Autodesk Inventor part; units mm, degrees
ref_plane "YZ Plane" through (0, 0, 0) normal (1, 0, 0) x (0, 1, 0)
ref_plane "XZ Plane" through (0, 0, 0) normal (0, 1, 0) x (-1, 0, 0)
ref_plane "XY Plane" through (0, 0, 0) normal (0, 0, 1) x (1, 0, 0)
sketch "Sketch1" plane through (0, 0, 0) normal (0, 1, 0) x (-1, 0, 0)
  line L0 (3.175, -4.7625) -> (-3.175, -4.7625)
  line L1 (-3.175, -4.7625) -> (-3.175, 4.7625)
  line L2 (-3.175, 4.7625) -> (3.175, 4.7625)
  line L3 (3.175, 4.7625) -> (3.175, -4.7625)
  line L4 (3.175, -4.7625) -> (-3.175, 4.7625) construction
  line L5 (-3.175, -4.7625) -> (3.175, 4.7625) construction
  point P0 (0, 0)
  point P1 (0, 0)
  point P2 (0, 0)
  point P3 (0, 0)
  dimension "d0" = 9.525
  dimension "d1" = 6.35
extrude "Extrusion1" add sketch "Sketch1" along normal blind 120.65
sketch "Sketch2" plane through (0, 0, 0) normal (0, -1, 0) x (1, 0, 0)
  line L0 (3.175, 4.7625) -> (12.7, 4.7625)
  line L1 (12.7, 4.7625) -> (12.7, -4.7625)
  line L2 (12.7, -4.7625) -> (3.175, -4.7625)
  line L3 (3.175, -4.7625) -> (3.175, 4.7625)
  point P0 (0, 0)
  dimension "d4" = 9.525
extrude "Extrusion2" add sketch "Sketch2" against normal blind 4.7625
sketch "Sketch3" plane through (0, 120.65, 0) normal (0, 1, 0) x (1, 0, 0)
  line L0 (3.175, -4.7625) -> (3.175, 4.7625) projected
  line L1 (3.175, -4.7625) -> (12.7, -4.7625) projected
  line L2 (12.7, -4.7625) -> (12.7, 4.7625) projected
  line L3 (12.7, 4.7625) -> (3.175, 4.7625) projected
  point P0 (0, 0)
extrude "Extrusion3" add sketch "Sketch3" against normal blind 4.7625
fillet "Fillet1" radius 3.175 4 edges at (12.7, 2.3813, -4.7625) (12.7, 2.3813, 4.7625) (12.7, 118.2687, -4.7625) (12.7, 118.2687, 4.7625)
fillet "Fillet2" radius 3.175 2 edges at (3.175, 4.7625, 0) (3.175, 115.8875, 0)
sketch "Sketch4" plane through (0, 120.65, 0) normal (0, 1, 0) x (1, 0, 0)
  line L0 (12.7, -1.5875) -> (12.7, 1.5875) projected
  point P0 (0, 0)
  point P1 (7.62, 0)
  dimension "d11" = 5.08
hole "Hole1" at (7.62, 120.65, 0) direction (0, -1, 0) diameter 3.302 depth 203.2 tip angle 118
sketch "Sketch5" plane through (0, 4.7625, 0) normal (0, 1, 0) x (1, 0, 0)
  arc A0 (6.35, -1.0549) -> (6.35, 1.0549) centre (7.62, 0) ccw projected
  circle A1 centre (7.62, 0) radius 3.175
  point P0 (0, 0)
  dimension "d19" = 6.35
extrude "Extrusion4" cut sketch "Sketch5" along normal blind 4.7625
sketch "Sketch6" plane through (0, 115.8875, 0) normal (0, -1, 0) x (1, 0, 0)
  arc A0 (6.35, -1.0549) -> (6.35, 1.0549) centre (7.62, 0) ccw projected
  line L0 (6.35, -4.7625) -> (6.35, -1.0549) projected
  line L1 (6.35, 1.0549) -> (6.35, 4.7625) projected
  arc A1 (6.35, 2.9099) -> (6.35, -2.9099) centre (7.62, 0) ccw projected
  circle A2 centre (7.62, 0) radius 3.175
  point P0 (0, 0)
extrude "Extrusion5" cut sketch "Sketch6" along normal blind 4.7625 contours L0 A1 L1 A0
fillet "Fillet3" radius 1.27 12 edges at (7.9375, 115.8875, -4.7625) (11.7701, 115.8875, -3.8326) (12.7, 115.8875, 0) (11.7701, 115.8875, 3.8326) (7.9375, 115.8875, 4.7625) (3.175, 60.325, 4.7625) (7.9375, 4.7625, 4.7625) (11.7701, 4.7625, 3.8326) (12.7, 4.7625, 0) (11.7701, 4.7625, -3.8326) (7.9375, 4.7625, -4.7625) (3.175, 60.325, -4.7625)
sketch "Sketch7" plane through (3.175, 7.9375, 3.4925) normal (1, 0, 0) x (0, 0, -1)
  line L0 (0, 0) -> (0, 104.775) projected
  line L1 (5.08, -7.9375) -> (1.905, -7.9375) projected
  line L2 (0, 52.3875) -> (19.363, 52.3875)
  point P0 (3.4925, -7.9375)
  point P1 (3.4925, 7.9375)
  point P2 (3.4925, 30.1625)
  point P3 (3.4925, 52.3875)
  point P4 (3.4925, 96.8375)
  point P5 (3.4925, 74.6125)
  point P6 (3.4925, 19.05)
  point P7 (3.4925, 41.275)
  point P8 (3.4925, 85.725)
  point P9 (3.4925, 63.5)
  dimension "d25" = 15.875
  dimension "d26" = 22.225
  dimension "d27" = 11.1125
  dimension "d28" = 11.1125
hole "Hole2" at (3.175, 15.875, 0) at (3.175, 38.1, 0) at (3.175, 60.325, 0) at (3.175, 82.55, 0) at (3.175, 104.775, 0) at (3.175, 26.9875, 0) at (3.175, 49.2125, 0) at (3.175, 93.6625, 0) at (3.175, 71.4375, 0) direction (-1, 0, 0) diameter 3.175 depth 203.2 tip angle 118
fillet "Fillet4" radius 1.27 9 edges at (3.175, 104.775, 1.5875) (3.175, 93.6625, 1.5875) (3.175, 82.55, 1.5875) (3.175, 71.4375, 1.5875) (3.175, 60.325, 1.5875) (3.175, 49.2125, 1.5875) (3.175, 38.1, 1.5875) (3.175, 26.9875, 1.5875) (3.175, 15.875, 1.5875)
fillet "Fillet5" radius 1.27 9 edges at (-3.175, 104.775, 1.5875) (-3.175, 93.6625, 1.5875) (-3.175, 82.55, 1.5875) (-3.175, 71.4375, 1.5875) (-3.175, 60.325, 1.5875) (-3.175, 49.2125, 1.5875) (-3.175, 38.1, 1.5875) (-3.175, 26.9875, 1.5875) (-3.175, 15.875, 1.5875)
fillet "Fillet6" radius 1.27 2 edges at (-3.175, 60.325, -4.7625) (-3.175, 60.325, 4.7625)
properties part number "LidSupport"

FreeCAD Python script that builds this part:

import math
import FreeCAD as App
import Part
import Sketcher

V = App.Vector
Q = App.Units.Quantity


def edges_at(feature, points):
    """Names of the edges that pass closest to the given points."""
    edges = feature.Shape.Edges
    near = lambda p: min(range(len(edges)), key=lambda i: edges[i].distToShape(Part.Vertex(*p))[0])
    return sorted({f"Edge{near(p) + 1}" for p in points})

doc = App.newDocument("Part")
body = doc.addObject("PartDesign::Body", "Body")

# Sketch on XZ plane
sketch1 = body.newObject("Sketcher::SketchObject", "Sketch")
sketch1.AttachmentSupport = (doc.getObject("XZ_Plane"), [""])
sketch1.MapMode = "FlatFace"
sketch1.addGeometry([
    Part.LineSegment(V(3, -5, 0), V(-3, -5, 0)),
    Part.LineSegment(V(-3, -5, 0), V(-3, 5, 0)),
    Part.LineSegment(V(-3, 5, 0), V(3, 5, 0)),
    Part.LineSegment(V(3, 5, 0), V(3, -5, 0)),
], False)
sketch1.addConstraint([
    Sketcher.Constraint("Coincident", 0, 2, 1, 1),
    Sketcher.Constraint("Coincident", 1, 2, 2, 1),
    Sketcher.Constraint("Coincident", 2, 2, 3, 1),
    Sketcher.Constraint("Coincident", 3, 2, 0, 1),
    Sketcher.Constraint("Horizontal", 0),
    Sketcher.Constraint("Vertical", 1),
    Sketcher.Constraint("Horizontal", 2),
    Sketcher.Constraint("Vertical", 3),
    Sketcher.Constraint("Symmetric", 0, 2, 2, 2, -1, 1),
    Sketcher.Constraint("DistanceX", 0, 2, 0, 1, Q("0.25 in")),
    Sketcher.Constraint("DistanceY", 1, 1, 1, 2, Q("0.375 in")),
])
pad1 = body.newObject("PartDesign::Pad", "Pad")
pad1.Profile = sketch1
pad1.Length = Q("4.75 in")
pad1.Reversed = True

# Sketch on XZ plane
sketch2 = body.newObject("Sketcher::SketchObject", "Sketch001")
sketch2.AttachmentSupport = (doc.getObject("XZ_Plane"), [""])
sketch2.MapMode = "FlatFace"
sketch2.addGeometry([
    Part.LineSegment(V(13, 5, 0), V(3, 5, 0)),
    Part.LineSegment(V(3, 5, 0), V(3, -5, 0)),
    Part.LineSegment(V(3, -5, 0), V(13, -5, 0)),
    Part.LineSegment(V(13, -5, 0), V(13, 5, 0)),
], False)
sketch2.addConstraint([
    Sketcher.Constraint("Coincident", 0, 2, 1, 1),
    Sketcher.Constraint("Coincident", 1, 2, 2, 1),
    Sketcher.Constraint("Coincident", 2, 2, 3, 1),
    Sketcher.Constraint("Coincident", 3, 2, 0, 1),
    Sketcher.Constraint("Horizontal", 0),
    Sketcher.Constraint("Vertical", 1),
    Sketcher.Constraint("Horizontal", 2),
    Sketcher.Constraint("Vertical", 3),
    Sketcher.Constraint("Equal", 2, 1),
    Sketcher.Constraint("DistanceX", 0, 2, 0, 1, Q("0.375 in")),
    Sketcher.Constraint("DistanceX", -1, 1, 2, 2, Q("0.5 in")),
    Sketcher.Constraint("DistanceY", -1, 1, 0, 2, Q("0.1875 in")),
])
pad2 = body.newObject("PartDesign::Pad", "Pad001")
pad2.Profile = sketch2
pad2.Length = Q("0.1875 in")
pad2.Reversed = True

# Sketch on XZ plane
sketch3 = body.newObject("Sketcher::SketchObject", "Sketch002")
sketch3.AttachmentSupport = (doc.getObject("XZ_Plane"), [""])
sketch3.MapMode = "FlatFace"
sketch3.AttachmentOffset = App.Placement(V(0, 0, -4.75 * 25.4), App.Rotation())
sketch3.addGeometry([
    Part.LineSegment(V(3, -5, 0), V(3, 5, 0)),
    Part.LineSegment(V(3, 5, 0), V(13, 5, 0)),
    Part.LineSegment(V(13, 5, 0), V(13, -5, 0)),
    Part.LineSegment(V(13, -5, 0), V(3, -5, 0)),
], False)
sketch3.addConstraint([
    Sketcher.Constraint("Coincident", 0, 2, 1, 1),
    Sketcher.Constraint("Coincident", 1, 2, 2, 1),
    Sketcher.Constraint("Coincident", 2, 2, 3, 1),
    Sketcher.Constraint("Coincident", 3, 2, 0, 1),
    Sketcher.Constraint("Vertical", 0),
    Sketcher.Constraint("Horizontal", 1),
    Sketcher.Constraint("Vertical", 2),
    Sketcher.Constraint("Horizontal", 3),
    Sketcher.Constraint("Equal", 3, 0),
    Sketcher.Constraint("DistanceX", -1, 1, 1, 2, Q("0.5 in")),
    Sketcher.Constraint("DistanceX", 1, 1, 1, 2, Q("0.375 in")),
    Sketcher.Constraint("DistanceY", -1, 1, 0, 2, Q("0.1875 in")),
])
pad3 = body.newObject("PartDesign::Pad", "Pad002")
pad3.Profile = sketch3
pad3.Length = Q("0.1875 in")
doc.recompute()

fillet = body.newObject("PartDesign::Fillet", "Fillet")
fillet.Base = (pad3, edges_at(pad3, [
    (12.7, 2.381, -4.763),
    (12.7, 2.381, 4.763),
    (12.7, 118.269, -4.763),
    (12.7, 118.269, 4.763),
]))
fillet.Radius = Q("0.125 in")
doc.recompute()

fillet2 = body.newObject("PartDesign::Fillet", "Fillet001")
fillet2.Base = (fillet, edges_at(fillet, [(3.175, 4.763, 0), (3.175, 115.888, 0)]))
fillet2.Radius = Q("0.125 in")

# Sketch on XZ plane
sketch4 = body.newObject("Sketcher::SketchObject", "Sketch003")
sketch4.AttachmentSupport = (doc.getObject("XZ_Plane"), [""])
sketch4.MapMode = "FlatFace"
sketch4.AttachmentOffset = App.Placement(V(0, 0, -4.75 * 25.4), App.Rotation())
sketch4.addGeometry(Part.Circle(V(7.6, 0, 0), V(0, 0, 1), 1.7), False)
sketch4.addConstraint([
    Sketcher.Constraint("PointOnObject", 0, 3, -1),
    Sketcher.Constraint("Diameter", 0, Q("0.13 in")),
    Sketcher.Constraint("DistanceX", -1, 1, 0, 3, Q("0.3 in")),
])
doc.recompute()
hole = body.newObject("PartDesign::Hole", "Hole")
hole.Profile = sketch4
hole.ThreadType = "None"
hole.Diameter = Q("0.13 in")
hole.DepthType = "Dimension"
hole.Depth = Q("8 in")
hole.DrillPoint = "Angled"
hole.DrillPointAngle = 118
hole.Reversed = True

# Sketch on XZ plane
sketch5 = body.newObject("Sketcher::SketchObject", "Sketch004")
sketch5.AttachmentSupport = (doc.getObject("XZ_Plane"), [""])
sketch5.MapMode = "FlatFace"
sketch5.AttachmentOffset = App.Placement(V(0, 0, -0.1875 * 25.4), App.Rotation())
sketch5.addGeometry(Part.Circle(V(7.6, 0, 0), V(0, 0, 1), 3.2), False)
sketch5.addConstraint([
    Sketcher.Constraint("PointOnObject", 0, 3, -1),
    Sketcher.Constraint("Diameter", 0, Q("0.25 in")),
    Sketcher.Constraint("DistanceX", -1, 1, 0, 3, Q("0.3 in")),
])
pocket1 = body.newObject("PartDesign::Pocket", "Pocket")
pocket1.Profile = sketch5
pocket1.Length = Q("0.1875 in")

# Sketch on XZ plane
sketch6 = body.newObject("Sketcher::SketchObject", "Sketch005")
sketch6.AttachmentSupport = (doc.getObject("XZ_Plane"), [""])
sketch6.MapMode = "FlatFace"
sketch6.AttachmentOffset = App.Placement(V(0, 0, -4.5625 * 25.4), App.Rotation())
sketch6.addGeometry([
    Part.LineSegment(V(6.3, -2.9, 0), V(6.3, -1.1, 0)),
    Part.ArcOfCircle(Part.Circle(V(7.6, 0, 0), V(0, 0, 1), 1.7), math.radians(-140), math.radians(140)),
    Part.LineSegment(V(6.3, 1.1, 0), V(6.3, 2.9, 0)),
    Part.ArcOfCircle(Part.Circle(V(7.6, 0, 0), V(0, 0, 1), 3.2), math.radians(114), math.radians(246)),
], False)
sketch6.addConstraint([
    Sketcher.Constraint("Coincident", 0, 2, 1, 1),
    Sketcher.Constraint("Coincident", 1, 2, 2, 1),
    Sketcher.Constraint("Coincident", 2, 2, 3, 1),
    Sketcher.Constraint("Coincident", 3, 2, 0, 1),
    Sketcher.Constraint("Vertical", 0),
    Sketcher.Constraint("Vertical", 2),
    Sketcher.Constraint("Coincident", 3, 3, 1, 3),
    Sketcher.Constraint("Symmetric", 0, 2, 1, 2, -1),
    Sketcher.Constraint("Radius", 1, Q("0.065 in")),
    Sketcher.Constraint("Radius", 3, Q("0.125 in")),
    Sketcher.Constraint("DistanceX", -1, 1, 1, 3, Q("0.3 in")),
    Sketcher.Constraint("DistanceX", -1, 1, 0, 2, Q("0.25 in")),
])
pocket2 = body.newObject("PartDesign::Pocket", "Pocket001")
pocket2.Profile = sketch6
pocket2.Length = Q("0.1875 in")
pocket2.Reversed = True
doc.recompute()

fillet3 = body.newObject("PartDesign::Fillet", "Fillet002")
fillet3.Base = (pocket2, edges_at(pocket2, [
    (7.938, 115.888, -4.763),
    (11.77, 115.888, -3.833),
    (12.7, 115.888, 0),
    (11.77, 115.888, 3.833),
    (7.938, 115.888, 4.763),
    (3.175, 60.325, 4.763),
    (7.938, 4.763, 4.763),
    (11.77, 4.763, 3.833),
    (12.7, 4.763, 0),
    (11.77, 4.763, -3.833),
    (7.938, 4.763, -4.763),
    (3.175, 60.325, -4.763),
]))
fillet3.Radius = Q("0.05 in")

# Sketch on YZ plane
sketch7 = body.newObject("Sketcher::SketchObject", "Sketch006")
sketch7.AttachmentSupport = (doc.getObject("YZ_Plane"), [""])
sketch7.MapMode = "FlatFace"
sketch7.AttachmentOffset = App.Placement(V(0, 0, 0.125 * 25.4), App.Rotation())
sketch7.addGeometry([
    Part.Circle(V(15.9, 0, 0), V(0, 0, 1), 1.6),  # 0
    Part.Circle(V(38.1, 0, 0), V(0, 0, 1), 1.6),  # 1
    Part.Circle(V(60.3, 0, 0), V(0, 0, 1), 1.6),  # 2
    Part.Circle(V(82.5, 0, 0), V(0, 0, 1), 1.6),  # 3
    Part.Circle(V(104.8, 0, 0), V(0, 0, 1), 1.6),  # 4
    Part.Circle(V(27, 0, 0), V(0, 0, 1), 1.6),  # 5
    Part.Circle(V(49.2, 0, 0), V(0, 0, 1), 1.6),  # 6
    Part.Circle(V(93.7, 0, 0), V(0, 0, 1), 1.6),  # 7
    Part.Circle(V(71.4, 0, 0), V(0, 0, 1), 1.6),  # 8
], False)
sketch7.addConstraint([
    Sketcher.Constraint("Equal", 0, 1),
    Sketcher.Constraint("Equal", 1, 2),
    Sketcher.Constraint("Equal", 2, 3),
    Sketcher.Constraint("Equal", 3, 4),
    Sketcher.Constraint("Equal", 4, 5),
    Sketcher.Constraint("Equal", 5, 6),
    Sketcher.Constraint("Equal", 6, 7),
    Sketcher.Constraint("Equal", 7, 8),
    Sketcher.Constraint("PointOnObject", 0, 3, -1),
    Sketcher.Constraint("PointOnObject", 1, 3, -1),
    Sketcher.Constraint("PointOnObject", 2, 3, -1),
    Sketcher.Constraint("PointOnObject", 3, 3, -1),
    Sketcher.Constraint("PointOnObject", 4, 3, -1),
    Sketcher.Constraint("PointOnObject", 5, 3, -1),
    Sketcher.Constraint("PointOnObject", 6, 3, -1),
    Sketcher.Constraint("PointOnObject", 7, 3, -1),
    Sketcher.Constraint("PointOnObject", 8, 3, -1),
    Sketcher.Constraint("Diameter", 0, Q("0.125 in")),
    Sketcher.Constraint("DistanceX", -1, 1, 1, 3, Q("1.5 in")),
    Sketcher.Constraint("DistanceX", 0, 3, 4, 3, Q("3.5 in")),
    Sketcher.Constraint("DistanceX", -1, 1, 3, 3, Q("3.25 in")),
    Sketcher.Constraint("DistanceX", 0, 3, 2, 3, Q("1.75 in")),
    Sketcher.Constraint("DistanceX", 6, 3, 7, 3, Q("1.75 in")),
    Sketcher.Constraint("DistanceX", -1, 1, 0, 3, Q("0.625 in")),
    Sketcher.Constraint("DistanceX", -1, 1, 5, 3, Q("1.0625 in")),
    Sketcher.Constraint("DistanceX", -1, 1, 6, 3, Q("1.9375 in")),
    Sketcher.Constraint("DistanceX", -1, 1, 8, 3, Q("2.8125 in")),
])
doc.recompute()
hole2 = body.newObject("PartDesign::Hole", "Hole001")
hole2.Profile = sketch7
hole2.ThreadType = "None"
hole2.Diameter = Q("0.125 in")
hole2.DepthType = "Dimension"
hole2.Depth = Q("8 in")
hole2.DrillPoint = "Angled"
hole2.DrillPointAngle = 118
doc.recompute()

fillet4 = body.newObject("PartDesign::Fillet", "Fillet003")
fillet4.Base = (hole2, edges_at(hole2, [
    (3.175, 104.775, 1.587),
    (3.175, 93.662, 1.587),
    (3.175, 82.55, 1.587),
    (3.175, 71.438, 1.587),
    (3.175, 60.325, 1.587),
    (3.175, 49.212, 1.587),
    (3.175, 38.1, 1.587),
    (3.175, 26.988, 1.587),
    (3.175, 15.875, 1.587),
]))
fillet4.Radius = Q("0.05 in")
doc.recompute()

fillet5 = body.newObject("PartDesign::Fillet", "Fillet004")
fillet5.Base = (fillet4, edges_at(fillet4, [
    (-3.175, 104.775, 1.587),
    (-3.175, 93.662, 1.587),
    (-3.175, 82.55, 1.587),
    (-3.175, 71.438, 1.587),
    (-3.175, 60.325, 1.587),
    (-3.175, 49.212, 1.587),
    (-3.175, 38.1, 1.587),
    (-3.175, 26.988, 1.587),
    (-3.175, 15.875, 1.587),
]))
fillet5.Radius = Q("0.05 in")
doc.recompute()

fillet6 = body.newObject("PartDesign::Fillet", "Fillet005")
fillet6.Base = (fillet5, edges_at(fillet5, [(-3.175, 60.325, -4.763), (-3.175, 60.325, 4.763)]))
fillet6.Radius = Q("0.05 in")

doc.recompute()
